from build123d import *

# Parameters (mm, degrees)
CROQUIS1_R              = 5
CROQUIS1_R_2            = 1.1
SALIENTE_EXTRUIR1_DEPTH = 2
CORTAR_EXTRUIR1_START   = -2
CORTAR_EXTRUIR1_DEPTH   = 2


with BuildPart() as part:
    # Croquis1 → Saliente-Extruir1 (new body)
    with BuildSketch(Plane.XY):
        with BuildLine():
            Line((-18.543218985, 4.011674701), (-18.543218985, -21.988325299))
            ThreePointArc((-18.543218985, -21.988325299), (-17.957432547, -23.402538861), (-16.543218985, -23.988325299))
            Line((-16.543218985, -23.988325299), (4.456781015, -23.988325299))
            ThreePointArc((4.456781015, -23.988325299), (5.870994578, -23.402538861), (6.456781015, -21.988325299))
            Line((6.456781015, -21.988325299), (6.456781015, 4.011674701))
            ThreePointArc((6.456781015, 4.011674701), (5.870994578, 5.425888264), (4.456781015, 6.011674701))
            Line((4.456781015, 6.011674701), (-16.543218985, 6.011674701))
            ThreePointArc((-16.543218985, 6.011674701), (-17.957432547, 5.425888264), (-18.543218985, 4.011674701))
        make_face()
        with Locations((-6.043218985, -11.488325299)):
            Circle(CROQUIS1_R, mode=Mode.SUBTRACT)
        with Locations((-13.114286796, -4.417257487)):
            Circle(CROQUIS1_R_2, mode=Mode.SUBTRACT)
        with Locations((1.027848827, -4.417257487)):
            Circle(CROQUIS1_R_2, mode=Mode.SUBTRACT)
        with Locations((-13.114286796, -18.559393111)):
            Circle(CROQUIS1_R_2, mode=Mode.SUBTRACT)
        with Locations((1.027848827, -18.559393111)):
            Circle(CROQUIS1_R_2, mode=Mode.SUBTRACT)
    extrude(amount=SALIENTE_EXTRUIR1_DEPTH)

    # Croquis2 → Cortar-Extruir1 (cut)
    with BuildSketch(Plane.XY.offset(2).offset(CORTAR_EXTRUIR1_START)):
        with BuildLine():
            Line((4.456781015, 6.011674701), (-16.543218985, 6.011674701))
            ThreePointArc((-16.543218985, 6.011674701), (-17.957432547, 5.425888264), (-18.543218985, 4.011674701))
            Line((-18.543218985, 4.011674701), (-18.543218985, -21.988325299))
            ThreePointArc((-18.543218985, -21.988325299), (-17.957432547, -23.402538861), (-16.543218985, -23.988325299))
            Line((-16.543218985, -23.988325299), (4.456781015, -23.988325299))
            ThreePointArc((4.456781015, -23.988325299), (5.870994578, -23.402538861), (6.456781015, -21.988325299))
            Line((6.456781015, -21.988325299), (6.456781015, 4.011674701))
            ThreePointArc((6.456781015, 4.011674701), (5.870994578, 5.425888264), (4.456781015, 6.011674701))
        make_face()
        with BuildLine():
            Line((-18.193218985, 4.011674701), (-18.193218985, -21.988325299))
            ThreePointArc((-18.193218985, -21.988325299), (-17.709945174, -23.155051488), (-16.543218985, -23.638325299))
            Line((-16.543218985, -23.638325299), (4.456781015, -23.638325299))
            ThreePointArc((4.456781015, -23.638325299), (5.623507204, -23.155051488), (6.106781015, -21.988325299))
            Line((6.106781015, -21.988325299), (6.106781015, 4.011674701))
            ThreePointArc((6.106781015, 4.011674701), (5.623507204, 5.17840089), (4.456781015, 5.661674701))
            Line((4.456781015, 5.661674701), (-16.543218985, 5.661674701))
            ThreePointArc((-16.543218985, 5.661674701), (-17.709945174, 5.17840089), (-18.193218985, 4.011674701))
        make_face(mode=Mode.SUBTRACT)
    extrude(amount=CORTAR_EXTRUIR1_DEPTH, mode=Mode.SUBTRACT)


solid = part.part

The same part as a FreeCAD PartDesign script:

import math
import FreeCAD as App
import Part
import Sketcher
Q = App.Units.Quantity

doc = App.newDocument("Part")
body = doc.addObject("PartDesign::Body", "Body")

sketch1 = doc.addObject("Sketcher::SketchObject", "Sketch")
body.addObject(sketch1)
sketch1.AttachmentSupport = (doc.XY_Plane, [""])
sketch1.MapMode = "FlatFace"
sketch1.addGeometry([
    Part.LineSegment(App.Vector(-18.5, 4, 0), App.Vector(-18.5, -22, 0)),
    Part.ArcOfCircle(Part.Circle(App.Vector(-16.5, -22, 0), App.Vector(0, 0, 1), 2), math.radians(-180), math.radians(-90)),
    Part.LineSegment(App.Vector(-16.5, -24, 0), App.Vector(4.5, -24, 0)),
    Part.ArcOfCircle(Part.Circle(App.Vector(4.5, -22, 0), App.Vector(0, 0, 1), 2), math.radians(-90), math.radians(0)),
    Part.LineSegment(App.Vector(6.5, -22, 0), App.Vector(6.5, 4, 0)),
    Part.ArcOfCircle(Part.Circle(App.Vector(4.5, 4, 0), App.Vector(0, 0, 1), 2), math.radians(0), math.radians(90)),
    Part.LineSegment(App.Vector(4.5, 6, 0), App.Vector(-16.5, 6, 0)),
    Part.ArcOfCircle(Part.Circle(App.Vector(-16.5, 4, 0), App.Vector(0, 0, 1), 2), math.radians(90), math.radians(180)),
    Part.Circle(App.Vector(-13.1, -18.6, 0), App.Vector(0, 0, 1), 1.1),
    Part.Circle(App.Vector(-6, -11.5, 0), App.Vector(0, 0, 1), 5),
    Part.Circle(App.Vector(1, -18.6, 0), App.Vector(0, 0, 1), 1.1),
    Part.Circle(App.Vector(-13.1, -4.4, 0), App.Vector(0, 0, 1), 1.1),
    Part.Circle(App.Vector(1, -4.4, 0), App.Vector(0, 0, 1), 1.1),
], False)
sketch1.addConstraint([
    Sketcher.Constraint("Tangent", 0, 2, 1, 1),
    Sketcher.Constraint("Tangent", 1, 2, 2, 1),
    Sketcher.Constraint("Tangent", 2, 2, 3, 1),
    Sketcher.Constraint("Tangent", 3, 2, 4, 1),
    Sketcher.Constraint("Tangent", 4, 2, 5, 1),
    Sketcher.Constraint("Tangent", 5, 2, 6, 1),
    Sketcher.Constraint("Tangent", 6, 2, 7, 1),
    Sketcher.Constraint("Tangent", 7, 2, 0, 1),
    Sketcher.Constraint("Vertical", 0),
    Sketcher.Constraint("Horizontal", 2),
    Sketcher.Constraint("Vertical", 4),
    Sketcher.Constraint("Horizontal", 6),
    Sketcher.Constraint("Equal", 1, 3),
    Sketcher.Constraint("Equal", 3, 5),
    Sketcher.Constraint("Equal", 5, 7),
    Sketcher.Constraint("Equal", 8, 10),
    Sketcher.Constraint("Equal", 10, 11),
    Sketcher.Constraint("Equal", 11, 12),
    Sketcher.Constraint("Horizontal", 8, 3, 10, 3),
    Sketcher.Constraint("Horizontal", 11, 3, 12, 3),
    Sketcher.Constraint("Vertical", 8, 3, 11, 3),
    Sketcher.Constraint("Vertical", 10, 3, 12, 3),
    Sketcher.Constraint("Diameter", 9, Q("10 mm")),
    Sketcher.Constraint("Radius", 1, Q("2 mm")),
    Sketcher.Constraint("Diameter", 8, Q("2.2 mm")),
    Sketcher.Constraint("DistanceX", 2, 1, 2, 2, Q("21 mm")),
    Sketcher.Constraint("DistanceY", 0, 2, 0, 1, Q("26 mm")),
    Sketcher.Constraint("DistanceX", 1, 3, 9, 3, Q("10.5 mm")),
    Sketcher.Constraint("DistanceY", 1, 3, 9, 3, Q("10.5 mm")),
    Sketcher.Constraint("DistanceX", 1, 3, -1, 1, Q("16.543219 mm")),
    Sketcher.Constraint("DistanceX", -1, 1, 10, 3, Q("1.027849 mm")),
    Sketcher.Constraint("DistanceY", 1, 3, -1, 1, Q("21.988325 mm")),
    Sketcher.Constraint("DistanceX", 8, 3, -1, 1, Q("13.114287 mm")),
    Sketcher.Constraint("DistanceY", 8, 3, -1, 1, Q("18.559393 mm")),
    Sketcher.Constraint("DistanceY", 11, 3, -1, 1, Q("4.417257 mm")),
])
pad1 = doc.addObject("PartDesign::Pad", "Pad")
body.addObject(pad1)
pad1.Profile = sketch1
pad1.Length = 2

sketch2 = doc.addObject("Sketcher::SketchObject", "Sketch001")
body.addObject(sketch2)
sketch2.AttachmentSupport = (doc.XY_Plane, [""])
sketch2.MapMode = "FlatFace"
sketch2.addGeometry([
    Part.LineSegment(App.Vector(4.5, 6, 0), App.Vector(-16.5, 6, 0)),
    Part.ArcOfCircle(Part.Circle(App.Vector(-16.5, 4, 0), App.Vector(0, 0, 1), 2), math.radians(90), math.radians(180)),
    Part.LineSegment(App.Vector(-18.5, 4, 0), App.Vector(-18.5, -22, 0)),
    Part.ArcOfCircle(Part.Circle(App.Vector(-16.5, -22, 0), App.Vector(0, 0, 1), 2), math.radians(-180), math.radians(-90)),
    Part.LineSegment(App.Vector(-16.5, -24, 0), App.Vector(4.5, -24, 0)),
    Part.ArcOfCircle(Part.Circle(App.Vector(4.5, -22, 0), App.Vector(0, 0, 1), 2), math.radians(-90), math.radians(0)),
    Part.LineSegment(App.Vector(6.5, -22, 0), App.Vector(6.5, 4, 0)),
    Part.ArcOfCircle(Part.Circle(App.Vector(4.5, 4, 0), App.Vector(0, 0, 1), 2), math.radians(0), math.radians(90)),
    Part.LineSegment(App.Vector(-18.2, -22, 0), App.Vector(-18.2, 4, 0)),
    Part.ArcOfCircle(Part.Circle(App.Vector(-16.5, 4, 0), App.Vector(0, 0, 1), 1.6), math.radians(90), math.radians(180)),
    Part.LineSegment(App.Vector(-16.5, 5.7, 0), App.Vector(4.5, 5.7, 0)),
    Part.ArcOfCircle(Part.Circle(App.Vector(4.5, 4, 0), App.Vector(0, 0, 1), 1.6), math.radians(0), math.radians(90)),
    Part.LineSegment(App.Vector(6.1, 4, 0), App.Vector(6.1, -22, 0)),
    Part.ArcOfCircle(Part.Circle(App.Vector(4.5, -22, 0), App.Vector(0, 0, 1), 1.6), math.radians(-90), math.radians(0)),
    Part.LineSegment(App.Vector(4.5, -23.6, 0), App.Vector(-16.5, -23.6, 0)),
    Part.ArcOfCircle(Part.Circle(App.Vector(-16.5, -22, 0), App.Vector(0, 0, 1), 1.6), math.radians(180), math.radians(270)),
], False)
sketch2.addConstraint([
    Sketcher.Constraint("Tangent", 0, 2, 1, 1),
    Sketcher.Constraint("Tangent", 1, 2, 2, 1),
    Sketcher.Constraint("Tangent", 2, 2, 3, 1),
    Sketcher.Constraint("Tangent", 3, 2, 4, 1),
    Sketcher.Constraint("Tangent", 4, 2, 5, 1),
    Sketcher.Constraint("Tangent", 5, 2, 6, 1),
    Sketcher.Constraint("Tangent", 6, 2, 7, 1),
    Sketcher.Constraint("Tangent", 7, 2, 0, 1),
    Sketcher.Constraint("Tangent", 8, 2, 9, 2),
    Sketcher.Constraint("Tangent", 9, 1, 10, 1),
    Sketcher.Constraint("Tangent", 10, 2, 11, 2),
    Sketcher.Constraint("Tangent", 11, 1, 12, 1),
    Sketcher.Constraint("Tangent", 12, 2, 13, 2),
    Sketcher.Constraint("Tangent", 13, 1, 14, 1),
    Sketcher.Constraint("Tangent", 14, 2, 15, 2),
    Sketcher.Constraint("Tangent", 15, 1, 8, 1),
    Sketcher.Constraint("Horizontal", 0),
    Sketcher.Constraint("Vertical", 2),
    Sketcher.Constraint("Horizontal", 4),
    Sketcher.Constraint("Vertical", 6),
    Sketcher.Constraint("Vertical", 8),
    Sketcher.Constraint("Horizontal", 10),
    Sketcher.Constraint("Vertical", 12),
    Sketcher.Constraint("Horizontal", 14),
    Sketcher.Constraint("Coincident", 9, 3, 1, 3),
    Sketcher.Constraint("Coincident", 11, 3, 7, 3),
    Sketcher.Constraint("Coincident", 13, 3, 5, 3),
    Sketcher.Constraint("Equal", 1, 3),
    Sketcher.Constraint("Equal", 3, 5),
    Sketcher.Constraint("Equal", 5, 7),
    Sketcher.Constraint("Equal", 13, 15),
    Sketcher.Constraint("Radius", 1, Q("2 mm")),
    Sketcher.Constraint("DistanceX", 0, 2, 0, 1, Q("21 mm")),
    Sketcher.Constraint("DistanceY", 2, 2, 2, 1, Q("26 mm")),
    Sketcher.Constraint("Radius", 9, Q("1.65 mm")),
    Sketcher.Constraint("DistanceX", 1, 3, -1, 1, Q("16.543219 mm")),
    Sketcher.Constraint("DistanceY", -1, 1, 1, 3, Q("4.011675 mm")),
])
pocket1 = doc.addObject("PartDesign::Pocket", "Pocket")
body.addObject(pocket1)
pocket1.Profile = sketch2
pocket1.Length = 2
pocket1.Reversed = True

doc.recompute()
